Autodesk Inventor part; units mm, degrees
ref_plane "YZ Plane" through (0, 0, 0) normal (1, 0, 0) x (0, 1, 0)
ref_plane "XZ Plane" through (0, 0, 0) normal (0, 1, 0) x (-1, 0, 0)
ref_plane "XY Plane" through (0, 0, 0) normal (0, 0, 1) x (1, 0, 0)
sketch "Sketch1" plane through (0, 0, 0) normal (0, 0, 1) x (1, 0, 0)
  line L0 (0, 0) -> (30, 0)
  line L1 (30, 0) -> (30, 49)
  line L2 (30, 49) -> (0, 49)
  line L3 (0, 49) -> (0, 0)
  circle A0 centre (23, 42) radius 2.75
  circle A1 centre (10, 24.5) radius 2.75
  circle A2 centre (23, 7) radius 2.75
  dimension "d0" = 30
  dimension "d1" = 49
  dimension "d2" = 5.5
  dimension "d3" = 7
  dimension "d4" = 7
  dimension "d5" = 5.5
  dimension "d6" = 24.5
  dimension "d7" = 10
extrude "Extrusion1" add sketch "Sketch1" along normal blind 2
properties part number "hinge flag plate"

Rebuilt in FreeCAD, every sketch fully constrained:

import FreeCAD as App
import Part
import Sketcher
Q = App.Units.Quantity

doc = App.newDocument("Part")
body = doc.addObject("PartDesign::Body", "Body")

sketch1 = body.newObject("Sketcher::SketchObject", "Sketch")
sketch1.AttachmentSupport = (doc.getObject("XY_Plane"), [""])
sketch1.MapMode = "FlatFace"
sketch1.addGeometry(Part.LineSegment(App.Vector(0, 49, 0), App.Vector(0, 0, 0)), False)
sketch1.addGeometry(Part.LineSegment(App.Vector(0, 0, 0), App.Vector(30, 0, 0)), False)
sketch1.addGeometry(Part.LineSegment(App.Vector(30, 0, 0), App.Vector(30, 49, 0)), False)
sketch1.addGeometry(Part.LineSegment(App.Vector(30, 49, 0), App.Vector(0, 49, 0)), False)
sketch1.addGeometry(Part.Circle(App.Vector(10, 24.5, 0), App.Vector(0, 0, 1), 2.75), False)
sketch1.addGeometry(Part.Circle(App.Vector(23, 7, 0), App.Vector(0, 0, 1), 2.75), False)
sketch1.addGeometry(Part.Circle(App.Vector(23, 42, 0), App.Vector(0, 0, 1), 2.75), False)
sketch1.addConstraint(Sketcher.Constraint("Coincident", 0, 2, 1, 1))
sketch1.addConstraint(Sketcher.Constraint("Coincident", 1, 2, 2, 1))
sketch1.addConstraint(Sketcher.Constraint("Coincident", 2, 2, 3, 1))
sketch1.addConstraint(Sketcher.Constraint("Coincident", 3, 2, 0, 1))
sketch1.addConstraint(Sketcher.Constraint("Vertical", 0))
sketch1.addConstraint(Sketcher.Constraint("Horizontal", 1))
sketch1.addConstraint(Sketcher.Constraint("Vertical", 2))
sketch1.addConstraint(Sketcher.Constraint("Horizontal", 3))
sketch1.addConstraint(Sketcher.Constraint("Coincident", 0, 2, -1, 1))
sketch1.addConstraint(Sketcher.Constraint("Equal", 4, 5))
sketch1.addConstraint(Sketcher.Constraint("Equal", 5, 6))
sketch1.addConstraint(Sketcher.Constraint("Vertical", 5, 3, 6, 3))
sketch1.addConstraint(Sketcher.Constraint("Diameter", 4, Q("5.5 mm")))
sketch1.addConstraint(Sketcher.Constraint("DistanceX", 1, 1, 1, 2, Q("30 mm")))
sketch1.addConstraint(Sketcher.Constraint("DistanceY", 0, 2, 0, 1, Q("49 mm")))
sketch1.addConstraint(Sketcher.Constraint("DistanceX", -1, 1, 4, 3, Q("10 mm")))
sketch1.addConstraint(Sketcher.Constraint("DistanceY", -1, 1, 5, 3, Q("7 mm")))
sketch1.addConstraint(Sketcher.Constraint("DistanceX", 5, 3, 1, 2, Q("7 mm")))
sketch1.addConstraint(Sketcher.Constraint("DistanceY", 6, 3, 2, 2, Q("7 mm")))
sketch1.addConstraint(Sketcher.Constraint("DistanceY", -1, 1, 4, 3, Q("24.5 mm")))
pad1 = body.newObject("PartDesign::Pad", "Pad")
pad1.Profile = sketch1
pad1.Length = 2

doc.recompute()
